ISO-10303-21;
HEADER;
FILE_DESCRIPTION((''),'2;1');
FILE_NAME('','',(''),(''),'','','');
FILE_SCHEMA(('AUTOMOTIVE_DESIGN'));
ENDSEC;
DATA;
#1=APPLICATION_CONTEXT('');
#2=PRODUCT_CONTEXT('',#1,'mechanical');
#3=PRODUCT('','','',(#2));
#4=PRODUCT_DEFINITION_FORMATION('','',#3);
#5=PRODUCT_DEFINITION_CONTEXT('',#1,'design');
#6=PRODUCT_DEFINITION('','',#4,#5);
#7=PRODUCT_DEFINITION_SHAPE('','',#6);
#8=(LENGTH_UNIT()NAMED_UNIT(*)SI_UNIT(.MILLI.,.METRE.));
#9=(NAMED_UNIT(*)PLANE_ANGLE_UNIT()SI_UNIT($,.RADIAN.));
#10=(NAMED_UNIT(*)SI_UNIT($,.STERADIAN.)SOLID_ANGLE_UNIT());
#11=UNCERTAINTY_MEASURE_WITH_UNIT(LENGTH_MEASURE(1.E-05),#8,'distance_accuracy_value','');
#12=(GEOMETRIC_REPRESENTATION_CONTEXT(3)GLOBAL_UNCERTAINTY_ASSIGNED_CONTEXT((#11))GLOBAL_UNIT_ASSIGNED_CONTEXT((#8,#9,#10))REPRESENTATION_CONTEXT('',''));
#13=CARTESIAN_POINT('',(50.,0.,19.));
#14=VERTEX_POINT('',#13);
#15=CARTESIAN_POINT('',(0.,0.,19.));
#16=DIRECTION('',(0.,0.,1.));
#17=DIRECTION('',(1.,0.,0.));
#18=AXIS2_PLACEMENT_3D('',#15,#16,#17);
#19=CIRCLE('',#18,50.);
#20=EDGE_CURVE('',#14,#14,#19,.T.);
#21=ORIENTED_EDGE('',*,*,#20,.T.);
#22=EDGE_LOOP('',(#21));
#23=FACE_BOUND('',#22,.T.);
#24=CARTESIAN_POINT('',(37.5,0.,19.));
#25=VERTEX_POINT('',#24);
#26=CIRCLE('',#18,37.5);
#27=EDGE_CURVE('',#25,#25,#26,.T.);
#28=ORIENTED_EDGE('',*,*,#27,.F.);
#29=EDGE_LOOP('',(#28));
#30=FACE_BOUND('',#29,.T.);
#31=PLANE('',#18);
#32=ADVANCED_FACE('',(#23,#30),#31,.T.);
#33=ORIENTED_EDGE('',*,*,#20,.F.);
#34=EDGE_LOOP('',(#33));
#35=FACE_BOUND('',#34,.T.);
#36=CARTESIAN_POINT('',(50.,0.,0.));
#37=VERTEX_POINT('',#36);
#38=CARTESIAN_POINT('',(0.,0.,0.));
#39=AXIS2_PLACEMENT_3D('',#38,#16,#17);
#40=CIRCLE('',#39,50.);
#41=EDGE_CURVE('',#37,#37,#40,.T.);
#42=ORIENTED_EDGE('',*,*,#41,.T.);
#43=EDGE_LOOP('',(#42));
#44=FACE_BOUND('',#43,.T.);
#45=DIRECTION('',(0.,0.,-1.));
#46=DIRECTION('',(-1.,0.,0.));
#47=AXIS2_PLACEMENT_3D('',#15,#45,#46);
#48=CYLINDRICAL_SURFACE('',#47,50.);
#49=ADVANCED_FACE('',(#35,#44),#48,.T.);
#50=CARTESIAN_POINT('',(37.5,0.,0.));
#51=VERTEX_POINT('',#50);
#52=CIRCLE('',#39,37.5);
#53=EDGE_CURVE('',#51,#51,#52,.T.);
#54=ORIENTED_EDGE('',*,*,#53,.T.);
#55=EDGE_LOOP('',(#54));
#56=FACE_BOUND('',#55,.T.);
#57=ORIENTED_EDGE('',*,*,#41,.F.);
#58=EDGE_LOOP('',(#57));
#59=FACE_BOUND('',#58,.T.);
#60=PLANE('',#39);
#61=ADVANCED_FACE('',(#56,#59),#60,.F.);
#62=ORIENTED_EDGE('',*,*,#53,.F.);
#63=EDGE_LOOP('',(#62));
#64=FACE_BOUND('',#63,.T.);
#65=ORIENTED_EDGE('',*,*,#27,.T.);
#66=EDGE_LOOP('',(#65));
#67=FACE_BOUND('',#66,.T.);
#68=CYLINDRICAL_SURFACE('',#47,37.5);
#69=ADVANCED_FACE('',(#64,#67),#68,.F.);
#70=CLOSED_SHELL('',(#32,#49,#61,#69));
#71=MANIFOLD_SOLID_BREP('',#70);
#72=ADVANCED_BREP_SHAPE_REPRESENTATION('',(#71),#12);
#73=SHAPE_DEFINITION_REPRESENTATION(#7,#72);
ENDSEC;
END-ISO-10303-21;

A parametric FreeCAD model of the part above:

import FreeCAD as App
import Part
import Sketcher

V = App.Vector

doc = App.newDocument("Part")
body = doc.addObject("PartDesign::Body", "Body")

# Sketch on XY plane
sketch1 = doc.addObject("Sketcher::SketchObject", "Sketch")
body.addObject(sketch1)
sketch1.AttachmentSupport = (doc.XY_Plane, [""])
sketch1.MapMode = "FlatFace"
sketch1.addGeometry([
    Part.Circle(V(0, 0, 0), V(0, 0, 1), 50),
    Part.Circle(V(0, 0, 0), V(0, 0, 1), 37.5),
], False)
sketch1.addConstraint([
    Sketcher.Constraint("Coincident", 0, 3, -1, 1),
    Sketcher.Constraint("Coincident", 1, 3, -1, 1),
    Sketcher.Constraint("Diameter", 0, 100.0),
    Sketcher.Constraint("Diameter", 1, 75.0),
])
pad1 = doc.addObject("PartDesign::Pad", "Pad")
body.addObject(pad1)
pad1.Profile = sketch1
pad1.Length = 19

doc.recompute()
